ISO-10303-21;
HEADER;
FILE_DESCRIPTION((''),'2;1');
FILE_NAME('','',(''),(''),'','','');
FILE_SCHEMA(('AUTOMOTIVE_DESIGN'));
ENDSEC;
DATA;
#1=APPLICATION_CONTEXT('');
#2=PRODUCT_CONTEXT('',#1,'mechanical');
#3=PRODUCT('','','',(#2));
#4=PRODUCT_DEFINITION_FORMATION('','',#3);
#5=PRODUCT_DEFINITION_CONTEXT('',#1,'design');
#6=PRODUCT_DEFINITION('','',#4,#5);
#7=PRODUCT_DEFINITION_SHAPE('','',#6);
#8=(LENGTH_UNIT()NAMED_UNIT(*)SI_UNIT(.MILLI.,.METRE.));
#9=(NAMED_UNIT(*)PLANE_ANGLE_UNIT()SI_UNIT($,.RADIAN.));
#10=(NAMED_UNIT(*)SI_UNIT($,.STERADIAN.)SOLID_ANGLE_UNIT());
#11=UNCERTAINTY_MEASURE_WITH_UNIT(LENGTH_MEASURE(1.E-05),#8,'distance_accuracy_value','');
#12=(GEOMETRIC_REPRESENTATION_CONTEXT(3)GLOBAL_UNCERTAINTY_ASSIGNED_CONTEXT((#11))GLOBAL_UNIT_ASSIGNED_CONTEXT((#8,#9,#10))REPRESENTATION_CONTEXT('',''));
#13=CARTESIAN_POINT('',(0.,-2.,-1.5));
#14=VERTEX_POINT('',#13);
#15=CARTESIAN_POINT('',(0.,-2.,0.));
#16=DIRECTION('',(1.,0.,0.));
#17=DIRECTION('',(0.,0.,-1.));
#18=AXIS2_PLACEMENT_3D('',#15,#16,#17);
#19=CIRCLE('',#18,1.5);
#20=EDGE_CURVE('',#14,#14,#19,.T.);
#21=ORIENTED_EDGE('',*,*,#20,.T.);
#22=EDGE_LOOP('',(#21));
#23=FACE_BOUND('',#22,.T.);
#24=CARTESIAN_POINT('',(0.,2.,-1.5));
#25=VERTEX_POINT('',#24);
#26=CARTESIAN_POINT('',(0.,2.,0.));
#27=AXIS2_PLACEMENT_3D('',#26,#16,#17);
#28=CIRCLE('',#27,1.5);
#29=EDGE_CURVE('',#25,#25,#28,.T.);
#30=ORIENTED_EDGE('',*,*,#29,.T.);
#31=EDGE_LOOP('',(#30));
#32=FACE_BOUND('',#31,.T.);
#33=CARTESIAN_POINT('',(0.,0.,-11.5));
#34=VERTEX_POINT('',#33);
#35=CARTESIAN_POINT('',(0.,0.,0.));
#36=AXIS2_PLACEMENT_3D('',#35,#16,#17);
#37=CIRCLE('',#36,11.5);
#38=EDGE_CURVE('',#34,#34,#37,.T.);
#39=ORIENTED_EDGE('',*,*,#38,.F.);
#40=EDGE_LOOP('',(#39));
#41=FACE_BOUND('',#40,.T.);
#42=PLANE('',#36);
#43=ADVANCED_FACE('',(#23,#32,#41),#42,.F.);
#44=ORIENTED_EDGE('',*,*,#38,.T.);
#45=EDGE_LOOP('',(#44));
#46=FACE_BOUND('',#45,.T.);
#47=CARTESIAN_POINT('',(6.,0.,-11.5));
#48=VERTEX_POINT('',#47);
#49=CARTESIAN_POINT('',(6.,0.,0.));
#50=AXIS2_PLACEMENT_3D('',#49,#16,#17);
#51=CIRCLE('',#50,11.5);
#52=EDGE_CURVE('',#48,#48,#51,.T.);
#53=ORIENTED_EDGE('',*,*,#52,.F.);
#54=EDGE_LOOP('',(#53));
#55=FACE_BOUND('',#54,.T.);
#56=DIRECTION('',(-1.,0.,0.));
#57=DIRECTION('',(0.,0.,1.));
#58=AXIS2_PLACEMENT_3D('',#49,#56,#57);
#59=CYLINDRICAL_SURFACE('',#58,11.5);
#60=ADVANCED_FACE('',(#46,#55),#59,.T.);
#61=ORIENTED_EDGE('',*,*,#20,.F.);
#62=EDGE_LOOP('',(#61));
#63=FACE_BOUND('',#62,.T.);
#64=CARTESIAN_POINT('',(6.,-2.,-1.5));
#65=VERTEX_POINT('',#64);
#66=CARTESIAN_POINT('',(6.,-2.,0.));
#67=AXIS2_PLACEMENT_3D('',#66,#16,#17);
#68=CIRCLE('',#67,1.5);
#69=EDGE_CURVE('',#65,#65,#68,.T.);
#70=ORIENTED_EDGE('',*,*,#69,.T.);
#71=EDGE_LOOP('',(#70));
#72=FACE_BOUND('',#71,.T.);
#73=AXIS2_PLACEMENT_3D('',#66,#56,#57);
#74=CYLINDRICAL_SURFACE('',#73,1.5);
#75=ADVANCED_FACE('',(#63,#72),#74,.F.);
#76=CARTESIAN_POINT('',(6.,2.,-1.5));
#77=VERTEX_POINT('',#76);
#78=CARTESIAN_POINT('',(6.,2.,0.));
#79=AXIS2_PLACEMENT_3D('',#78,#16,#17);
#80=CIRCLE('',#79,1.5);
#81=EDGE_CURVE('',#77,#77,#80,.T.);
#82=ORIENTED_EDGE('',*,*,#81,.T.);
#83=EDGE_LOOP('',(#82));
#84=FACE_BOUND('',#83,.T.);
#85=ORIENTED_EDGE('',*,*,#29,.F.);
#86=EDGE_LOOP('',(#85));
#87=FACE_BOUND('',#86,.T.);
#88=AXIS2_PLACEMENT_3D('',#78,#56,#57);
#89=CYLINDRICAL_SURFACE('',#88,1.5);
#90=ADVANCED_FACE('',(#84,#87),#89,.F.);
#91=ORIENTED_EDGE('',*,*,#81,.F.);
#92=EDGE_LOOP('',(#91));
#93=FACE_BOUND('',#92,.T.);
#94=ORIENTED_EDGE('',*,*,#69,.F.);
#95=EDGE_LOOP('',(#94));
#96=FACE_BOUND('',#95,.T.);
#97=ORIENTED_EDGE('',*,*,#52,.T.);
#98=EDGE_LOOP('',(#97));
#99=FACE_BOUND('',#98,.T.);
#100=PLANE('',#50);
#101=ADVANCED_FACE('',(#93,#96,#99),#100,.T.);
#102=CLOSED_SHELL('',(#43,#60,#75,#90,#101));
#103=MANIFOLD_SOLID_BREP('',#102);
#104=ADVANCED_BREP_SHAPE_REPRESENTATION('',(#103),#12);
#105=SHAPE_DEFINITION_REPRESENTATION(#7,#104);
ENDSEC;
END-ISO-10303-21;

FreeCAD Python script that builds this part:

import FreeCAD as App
import Part
import Sketcher

V = App.Vector
Q = App.Units.Quantity

doc = App.newDocument("Part")
body = doc.addObject("PartDesign::Body", "Body")

sketch1 = body.newObject("Sketcher::SketchObject", "Sketch")
sketch1.AttachmentSupport = (doc.getObject("YZ_Plane"), [""])
sketch1.MapMode = "FlatFace"
sketch1.addGeometry([
    Part.Circle(V(0, 0, 0), V(0, 0, 1), 11.5),
    Part.Circle(V(-2, 0, 0), V(0, 0, 1), 1.5),
    Part.Circle(V(2, 0, 0), V(0, 0, 1), 1.5),
], False)
sketch1.addConstraint([
    Sketcher.Constraint("Coincident", 0, 3, -1, 1),
    Sketcher.Constraint("Equal", 1, 2),
    Sketcher.Constraint("Symmetric", 1, 3, 2, 3, -1, 1),
    Sketcher.Constraint("PointOnObject", 1, 3, -1),
    Sketcher.Constraint("Diameter", 0, Q("23 mm")),
    Sketcher.Constraint("Diameter", 1, Q("3 mm")),
    Sketcher.Constraint("DistanceX", 1, 3, -1, 1, Q("2 mm")),
])
pad1 = body.newObject("PartDesign::Pad", "Pad")
pad1.Profile = sketch1
pad1.Length = 6

doc.recompute()
